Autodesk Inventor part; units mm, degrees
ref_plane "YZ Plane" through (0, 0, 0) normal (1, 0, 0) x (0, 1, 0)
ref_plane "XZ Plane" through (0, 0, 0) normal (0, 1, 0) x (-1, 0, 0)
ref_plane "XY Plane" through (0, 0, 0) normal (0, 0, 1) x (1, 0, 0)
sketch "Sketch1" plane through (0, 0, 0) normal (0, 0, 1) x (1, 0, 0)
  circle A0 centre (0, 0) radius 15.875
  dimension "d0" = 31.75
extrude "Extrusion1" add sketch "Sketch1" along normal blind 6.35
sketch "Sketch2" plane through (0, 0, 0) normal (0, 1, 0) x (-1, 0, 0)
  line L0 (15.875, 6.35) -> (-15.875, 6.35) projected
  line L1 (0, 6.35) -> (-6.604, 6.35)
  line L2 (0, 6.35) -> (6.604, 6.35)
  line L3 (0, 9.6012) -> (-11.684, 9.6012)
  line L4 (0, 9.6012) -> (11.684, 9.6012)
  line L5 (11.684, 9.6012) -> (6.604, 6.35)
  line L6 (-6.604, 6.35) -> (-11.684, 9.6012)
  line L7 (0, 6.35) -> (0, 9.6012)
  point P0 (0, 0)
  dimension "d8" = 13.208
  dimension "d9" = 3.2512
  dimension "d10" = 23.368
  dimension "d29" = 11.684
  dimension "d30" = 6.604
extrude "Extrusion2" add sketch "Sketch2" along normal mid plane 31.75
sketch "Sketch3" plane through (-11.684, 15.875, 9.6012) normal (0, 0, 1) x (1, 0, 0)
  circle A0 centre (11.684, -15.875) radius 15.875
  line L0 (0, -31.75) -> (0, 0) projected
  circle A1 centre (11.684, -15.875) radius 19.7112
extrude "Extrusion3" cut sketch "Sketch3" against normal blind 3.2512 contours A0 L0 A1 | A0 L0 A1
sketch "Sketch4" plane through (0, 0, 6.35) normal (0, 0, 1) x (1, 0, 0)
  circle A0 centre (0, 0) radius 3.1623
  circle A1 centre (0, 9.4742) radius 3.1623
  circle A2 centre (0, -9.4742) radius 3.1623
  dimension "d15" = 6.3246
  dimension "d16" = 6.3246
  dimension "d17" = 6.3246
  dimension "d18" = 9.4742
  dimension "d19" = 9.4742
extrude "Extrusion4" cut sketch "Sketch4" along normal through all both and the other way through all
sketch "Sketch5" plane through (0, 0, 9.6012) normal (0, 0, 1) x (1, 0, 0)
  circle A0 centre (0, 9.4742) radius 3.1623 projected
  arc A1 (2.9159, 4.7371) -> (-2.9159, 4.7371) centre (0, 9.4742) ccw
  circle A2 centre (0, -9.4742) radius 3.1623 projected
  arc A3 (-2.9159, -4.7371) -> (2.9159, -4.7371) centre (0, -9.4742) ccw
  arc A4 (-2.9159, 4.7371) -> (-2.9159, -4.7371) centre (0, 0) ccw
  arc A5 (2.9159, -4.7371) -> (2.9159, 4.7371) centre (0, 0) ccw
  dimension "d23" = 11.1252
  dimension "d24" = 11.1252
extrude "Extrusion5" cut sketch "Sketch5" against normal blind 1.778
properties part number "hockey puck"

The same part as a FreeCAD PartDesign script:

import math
import FreeCAD as App
import Part
import Sketcher

V = App.Vector
Q = App.Units.Quantity


def add_polygon(sketch, points):
    """Adds a closed chain of lines whose ends are joined by coincident constraints."""
    first, n = sketch.GeometryCount, len(points)
    for a, b in zip(points, points[1:] + points[:1]):
        sketch.addGeometry(Part.LineSegment(App.Vector(*a, 0), App.Vector(*b, 0)), False)
    for i in range(n):
        sketch.addConstraint(Sketcher.Constraint("Coincident", first + i, 2, first + (i + 1) % n, 1))

doc = App.newDocument("Part")
body = doc.addObject("PartDesign::Body", "Body")

# Sketch on XY plane
sketch1 = body.newObject("Sketcher::SketchObject", "Sketch")
sketch1.AttachmentSupport = (doc.getObject("XY_Plane"), [""])
sketch1.MapMode = "FlatFace"
sketch1.addGeometry(Part.Circle(V(0, 0, 0), V(0, 0, 1), 16), False)
sketch1.addConstraint([
    Sketcher.Constraint("Coincident", 0, 3, -1, 1),
    Sketcher.Constraint("Diameter", 0, Q("1.25 in")),
])
pad1 = body.newObject("PartDesign::Pad", "Pad")
pad1.Profile = sketch1
pad1.Length = Q("0.25 in")

# Sketch on XZ plane
sketch2 = body.newObject("Sketcher::SketchObject", "Sketch001")
sketch2.AttachmentSupport = (doc.getObject("XZ_Plane"), [""])
sketch2.MapMode = "FlatFace"
add_polygon(sketch2, [(-7, 6), (-12, 10), (12, 10), (7, 6)])  # lines 0-3
sketch2.addConstraint([
    Sketcher.Constraint("Horizontal", 1),
    Sketcher.Constraint("Horizontal", 3),
    Sketcher.Constraint("Equal", 0, 2),
    Sketcher.Constraint("DistanceX", 1, 1, 1, 2, Q("0.92 in")),
    Sketcher.Constraint("DistanceX", 3, 2, 3, 1, Q("0.52 in")),
    Sketcher.Constraint("DistanceX", 0, 2, -1, 1, Q("0.46 in")),
    Sketcher.Constraint("DistanceY", 2, 2, 1, 2, Q("0.128 in")),
    Sketcher.Constraint("DistanceY", -1, 1, 2, 2, Q("0.25 in")),
])
pad2 = body.newObject("PartDesign::Pad", "Pad001")
pad2.Profile = sketch2
pad2.Length = Q("1.25 in")
pad2.Midplane = True

# Sketch on XY plane
sketch3 = body.newObject("Sketcher::SketchObject", "Sketch002")
sketch3.AttachmentSupport = (doc.getObject("XY_Plane"), [""])
sketch3.MapMode = "FlatFace"
sketch3.AttachmentOffset = App.Placement(V(0, 0, 0.378 * 25.4), App.Rotation())
sketch3.addGeometry([
    Part.Circle(V(0, 0, 0), V(0, 0, 1), 20),
    Part.Circle(V(0, 0, 0), V(0, 0, 1), 16),
], False)
sketch3.addConstraint([
    Sketcher.Constraint("Coincident", 0, 3, -1, 1),
    Sketcher.Constraint("Coincident", 1, 3, -1, 1),
    Sketcher.Constraint("Diameter", 1, Q("1.25 in")),
    Sketcher.Constraint("Diameter", 0, 39.4224),
])
pocket1 = body.newObject("PartDesign::Pocket", "Pocket")
pocket1.Profile = sketch3
pocket1.Length = Q("0.128 in")

# Sketch on XY plane
sketch4 = body.newObject("Sketcher::SketchObject", "Sketch003")
sketch4.AttachmentSupport = (doc.getObject("XY_Plane"), [""])
sketch4.MapMode = "FlatFace"
sketch4.AttachmentOffset = App.Placement(V(0, 0, 0.25 * 25.4), App.Rotation())
sketch4.addGeometry([
    Part.Circle(V(0, 0, 0), V(0, 0, 1), 3.2),
    Part.Circle(V(0, 9.5, 0), V(0, 0, 1), 3.2),
    Part.Circle(V(0, -9.5, 0), V(0, 0, 1), 3.2),
], False)
sketch4.addConstraint([
    Sketcher.Constraint("Coincident", 0, 3, -1, 1),
    Sketcher.Constraint("Equal", 0, 1),
    Sketcher.Constraint("Equal", 1, 2),
    Sketcher.Constraint("Symmetric", 1, 3, 2, 3, -1, 1),
    Sketcher.Constraint("PointOnObject", 1, 3, -2),
    Sketcher.Constraint("Diameter", 0, Q("0.249 in")),
    Sketcher.Constraint("DistanceY", -1, 1, 1, 3, Q("0.373 in")),
])
pocket2 = body.newObject("PartDesign::Pocket", "Pocket001")
pocket2.Profile = sketch4
pocket2.Type = "ThroughAll"
pocket2.Midplane = True

# Sketch on XY plane
sketch5 = body.newObject("Sketcher::SketchObject", "Sketch004")
sketch5.AttachmentSupport = (doc.getObject("XY_Plane"), [""])
sketch5.MapMode = "FlatFace"
sketch5.AttachmentOffset = App.Placement(V(0, 0, 0.378 * 25.4), App.Rotation())
sketch5.addGeometry([
    Part.ArcOfCircle(Part.Circle(V(0, 0, 0), V(0, 0, 1), 5.6), math.radians(-58), math.radians(58)),  # 0
    Part.ArcOfCircle(Part.Circle(V(0, 9.5, 0), V(0, 0, 1), 5.6), math.radians(-58), math.radians(238)),  # 1
    Part.ArcOfCircle(Part.Circle(V(0, 0, 0), V(0, 0, 1), 5.6), math.radians(122), math.radians(238)),  # 2
    Part.ArcOfCircle(Part.Circle(V(0, -9.5, 0), V(0, 0, 1), 5.6), math.radians(122), math.radians(418)),  # 3
    Part.Circle(V(0, -9.5, 0), V(0, 0, 1), 3.2),  # 4
    Part.Circle(V(0, 9.5, 0), V(0, 0, 1), 3.2),  # 5
], False)
sketch5.addConstraint([
    Sketcher.Constraint("Coincident", 0, 2, 1, 1),
    Sketcher.Constraint("Coincident", 1, 2, 2, 1),
    Sketcher.Constraint("Coincident", 2, 2, 3, 1),
    Sketcher.Constraint("Coincident", 3, 2, 0, 1),
    Sketcher.Constraint("Coincident", 0, 3, -1, 1),
    Sketcher.Constraint("Coincident", 2, 3, -1, 1),
    Sketcher.Constraint("Coincident", 4, 3, 3, 3),
    Sketcher.Constraint("Coincident", 5, 3, 1, 3),
    Sketcher.Constraint("Equal", 0, 1),
    Sketcher.Constraint("Equal", 1, 2),
    Sketcher.Constraint("Equal", 2, 3),
    Sketcher.Constraint("Equal", 4, 5),
    Sketcher.Constraint("Symmetric", 1, 3, 3, 3, -1, 1),
    Sketcher.Constraint("PointOnObject", 1, 3, -2),
    Sketcher.Constraint("Radius", 0, Q("0.219 in")),
    Sketcher.Constraint("Diameter", 4, Q("0.249 in")),
    Sketcher.Constraint("DistanceY", -1, 1, 1, 3, Q("0.373 in")),
])
pocket3 = body.newObject("PartDesign::Pocket", "Pocket002")
pocket3.Profile = sketch5
pocket3.Length = Q("0.07 in")

doc.recompute()
